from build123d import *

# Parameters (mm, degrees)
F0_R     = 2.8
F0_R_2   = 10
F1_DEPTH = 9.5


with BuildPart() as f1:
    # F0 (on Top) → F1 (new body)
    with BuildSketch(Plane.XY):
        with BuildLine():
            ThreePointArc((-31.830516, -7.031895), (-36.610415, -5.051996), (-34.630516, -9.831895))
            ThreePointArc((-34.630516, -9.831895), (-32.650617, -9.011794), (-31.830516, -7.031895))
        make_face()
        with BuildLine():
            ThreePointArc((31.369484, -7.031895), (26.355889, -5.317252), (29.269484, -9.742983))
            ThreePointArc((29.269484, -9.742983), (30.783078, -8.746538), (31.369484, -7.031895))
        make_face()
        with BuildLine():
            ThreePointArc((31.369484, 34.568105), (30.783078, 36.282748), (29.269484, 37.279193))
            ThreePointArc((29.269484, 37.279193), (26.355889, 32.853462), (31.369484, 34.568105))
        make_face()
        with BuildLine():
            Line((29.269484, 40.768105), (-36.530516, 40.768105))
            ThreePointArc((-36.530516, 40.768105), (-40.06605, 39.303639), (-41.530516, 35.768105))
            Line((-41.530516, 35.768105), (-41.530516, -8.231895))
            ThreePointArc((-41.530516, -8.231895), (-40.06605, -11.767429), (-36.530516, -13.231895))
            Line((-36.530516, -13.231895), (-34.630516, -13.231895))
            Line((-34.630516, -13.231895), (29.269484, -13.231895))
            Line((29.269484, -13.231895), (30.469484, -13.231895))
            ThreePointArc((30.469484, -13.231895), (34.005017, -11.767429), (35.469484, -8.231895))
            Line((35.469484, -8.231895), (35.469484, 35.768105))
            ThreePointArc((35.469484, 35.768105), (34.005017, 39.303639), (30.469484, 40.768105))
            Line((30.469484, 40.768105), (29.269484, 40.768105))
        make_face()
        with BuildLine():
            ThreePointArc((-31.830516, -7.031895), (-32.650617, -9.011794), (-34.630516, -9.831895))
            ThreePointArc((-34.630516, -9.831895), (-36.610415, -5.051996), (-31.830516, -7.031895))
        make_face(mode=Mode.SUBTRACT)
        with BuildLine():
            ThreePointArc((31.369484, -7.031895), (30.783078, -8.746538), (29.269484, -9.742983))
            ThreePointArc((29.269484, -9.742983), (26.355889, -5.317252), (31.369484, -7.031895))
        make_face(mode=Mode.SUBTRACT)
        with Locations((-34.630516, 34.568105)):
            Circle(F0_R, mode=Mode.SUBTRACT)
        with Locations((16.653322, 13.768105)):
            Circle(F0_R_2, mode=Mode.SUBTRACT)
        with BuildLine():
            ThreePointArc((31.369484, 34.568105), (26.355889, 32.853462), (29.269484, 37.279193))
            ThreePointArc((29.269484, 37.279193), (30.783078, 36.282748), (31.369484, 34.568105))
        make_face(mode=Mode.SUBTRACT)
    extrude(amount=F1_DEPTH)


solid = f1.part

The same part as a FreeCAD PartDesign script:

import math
import FreeCAD as App
import Part
import Sketcher

doc = App.newDocument("Part")
body = doc.addObject("PartDesign::Body", "Body")

sketch1 = body.newObject("Sketcher::SketchObject", "Sketch")
sketch1.AttachmentSupport = (doc.getObject("XY_Plane"), [""])
sketch1.MapMode = "FlatFace"
sketch1.addGeometry(Part.ArcOfCircle(Part.Circle(App.Vector(-36.5, 35.8, 0), App.Vector(0, 0, 1), 5), math.radians(90), math.radians(180)), False)
sketch1.addGeometry(Part.LineSegment(App.Vector(-41.5, 35.8, 0), App.Vector(-41.5, -8.2, 0)), False)
sketch1.addGeometry(Part.ArcOfCircle(Part.Circle(App.Vector(-36.5, -8.2, 0), App.Vector(0, 0, 1), 5), math.radians(180), math.radians(270)), False)
sketch1.addGeometry(Part.LineSegment(App.Vector(-36.5, -13.2, 0), App.Vector(30.5, -13.2, 0)), False)
sketch1.addGeometry(Part.ArcOfCircle(Part.Circle(App.Vector(30.5, -8.2, 0), App.Vector(0, 0, 1), 5), math.radians(-90), math.radians(0)), False)
sketch1.addGeometry(Part.LineSegment(App.Vector(35.5, -8.2, 0), App.Vector(35.5, 35.8, 0)), False)
sketch1.addGeometry(Part.ArcOfCircle(Part.Circle(App.Vector(30.5, 35.8, 0), App.Vector(0, 0, 1), 5), math.radians(0), math.radians(90)), False)
sketch1.addGeometry(Part.LineSegment(App.Vector(30.5, 40.8, 0), App.Vector(-36.5, 40.8, 0)), False)
sketch1.addGeometry(Part.ArcOfCircle(Part.Circle(App.Vector(-34.6, -7, 0), App.Vector(0, 0, 1), 2.8), math.radians(0), math.radians(270)), False)
sketch1.addGeometry(Part.ArcOfCircle(Part.Circle(App.Vector(-34.6, -7, 0), App.Vector(0, 0, 1), 2.8), math.radians(-90), math.radians(0)), False)
sketch1.addGeometry(Part.ArcOfCircle(Part.Circle(App.Vector(28.6, -7, 0), App.Vector(0, 0, 1), 2.8), math.radians(0), math.radians(284)), False)
sketch1.addGeometry(Part.ArcOfCircle(Part.Circle(App.Vector(28.6, -7, 0), App.Vector(0, 0, 1), 2.8), math.radians(-76), math.radians(0)), False)
sketch1.addGeometry(Part.Circle(App.Vector(-34.6, 34.6, 0), App.Vector(0, 0, 1), 2.8), False)
sketch1.addGeometry(Part.Circle(App.Vector(16.7, 13.8, 0), App.Vector(0, 0, 1), 10), False)
sketch1.addGeometry(Part.ArcOfCircle(Part.Circle(App.Vector(28.6, 34.6, 0), App.Vector(0, 0, 1), 2.8), math.radians(0), math.radians(76)), False)
sketch1.addGeometry(Part.ArcOfCircle(Part.Circle(App.Vector(28.6, 34.6, 0), App.Vector(0, 0, 1), 2.8), math.radians(76), math.radians(360)), False)
sketch1.addConstraint(Sketcher.Constraint("Tangent", 0, 2, 1, 1))
sketch1.addConstraint(Sketcher.Constraint("Tangent", 1, 2, 2, 1))
sketch1.addConstraint(Sketcher.Constraint("Tangent", 2, 2, 3, 1))
sketch1.addConstraint(Sketcher.Constraint("Tangent", 3, 2, 4, 1))
sketch1.addConstraint(Sketcher.Constraint("Tangent", 4, 2, 5, 1))
sketch1.addConstraint(Sketcher.Constraint("Tangent", 5, 2, 6, 1))
sketch1.addConstraint(Sketcher.Constraint("Tangent", 6, 2, 7, 1))
sketch1.addConstraint(Sketcher.Constraint("Tangent", 7, 2, 0, 1))
sketch1.addConstraint(Sketcher.Constraint("Tangent", 8, 1, 9, 2))
sketch1.addConstraint(Sketcher.Constraint("Coincident", 9, 1, 8, 2))
sketch1.addConstraint(Sketcher.Constraint("Tangent", 10, 1, 11, 2))
sketch1.addConstraint(Sketcher.Constraint("Coincident", 11, 1, 10, 2))
sketch1.addConstraint(Sketcher.Constraint("Tangent", 14, 1, 15, 2))
sketch1.addConstraint(Sketcher.Constraint("Coincident", 15, 1, 14, 2))
sketch1.addConstraint(Sketcher.Constraint("Vertical", 1))
sketch1.addConstraint(Sketcher.Constraint("Horizontal", 3))
sketch1.addConstraint(Sketcher.Constraint("Vertical", 5))
sketch1.addConstraint(Sketcher.Constraint("Horizontal", 7))
sketch1.addConstraint(Sketcher.Constraint("Equal", 0, 2))
sketch1.addConstraint(Sketcher.Constraint("Equal", 2, 4))
sketch1.addConstraint(Sketcher.Constraint("Equal", 4, 6))
sketch1.addConstraint(Sketcher.Constraint("Equal", 9, 10))
sketch1.addConstraint(Sketcher.Constraint("Equal", 11, 12))
sketch1.addConstraint(Sketcher.Constraint("Equal", 12, 14))
sketch1.addConstraint(Sketcher.Constraint("Horizontal", 9, 3, 10, 3))
sketch1.addConstraint(Sketcher.Constraint("Horizontal", 12, 3, 14, 3))
sketch1.addConstraint(Sketcher.Constraint("Horizontal", 11, 3, 8, 1))
sketch1.addConstraint(Sketcher.Constraint("Horizontal", 8, 1, 10, 1))
sketch1.addConstraint(Sketcher.Constraint("Horizontal", 15, 3, 14, 1))
sketch1.addConstraint(Sketcher.Constraint("Vertical", 9, 3, 12, 3))
sketch1.addConstraint(Sketcher.Constraint("Vertical", 11, 3, 14, 3))
sketch1.addConstraint(Sketcher.Constraint("Vertical", 12, 3, 9, 1))
sketch1.addConstraint(Sketcher.Constraint("Vertical", 11, 1, 15, 1))
sketch1.addConstraint(Sketcher.Constraint("Diameter", 13, 20.0))
sketch1.addConstraint(Sketcher.Constraint("Radius", 0, 5.0))
sketch1.addConstraint(Sketcher.Constraint("Diameter", 12, 5.6))
sketch1.addConstraint(Sketcher.Constraint("DistanceX", 3, 1, 3, 2, 67.0))
sketch1.addConstraint(Sketcher.Constraint("DistanceY", 1, 2, 1, 1, 44.0))
sketch1.addConstraint(Sketcher.Constraint("DistanceY", 4, 3, 13, 3, 21.999999))
sketch1.addConstraint(Sketcher.Constraint("DistanceX", 2, 3, 8, 3, 1.9))
sketch1.addConstraint(Sketcher.Constraint("DistanceY", 2, 3, 8, 3, 1.2))
sketch1.addConstraint(Sketcher.Constraint("DistanceX", 10, 3, 4, 3, 1.899999))
sketch1.addConstraint(Sketcher.Constraint("DistanceY", 12, 3, 0, 3, 1.2))
sketch1.addConstraint(Sketcher.Constraint("DistanceX", 11, 1, 4, 3, 1.199999))
sketch1.addConstraint(Sketcher.Constraint("DistanceX", -1, 1, 13, 3, 16.653322))
sketch1.addConstraint(Sketcher.Constraint("DistanceX", 13, 3, 10, 3, 11.916162))
sketch1.addConstraint(Sketcher.Constraint("DistanceY", -1, 1, 0, 3, 35.768105))
pad1 = body.newObject("PartDesign::Pad", "Pad")
pad1.Profile = sketch1
pad1.Length = 9.5

doc.recompute()
